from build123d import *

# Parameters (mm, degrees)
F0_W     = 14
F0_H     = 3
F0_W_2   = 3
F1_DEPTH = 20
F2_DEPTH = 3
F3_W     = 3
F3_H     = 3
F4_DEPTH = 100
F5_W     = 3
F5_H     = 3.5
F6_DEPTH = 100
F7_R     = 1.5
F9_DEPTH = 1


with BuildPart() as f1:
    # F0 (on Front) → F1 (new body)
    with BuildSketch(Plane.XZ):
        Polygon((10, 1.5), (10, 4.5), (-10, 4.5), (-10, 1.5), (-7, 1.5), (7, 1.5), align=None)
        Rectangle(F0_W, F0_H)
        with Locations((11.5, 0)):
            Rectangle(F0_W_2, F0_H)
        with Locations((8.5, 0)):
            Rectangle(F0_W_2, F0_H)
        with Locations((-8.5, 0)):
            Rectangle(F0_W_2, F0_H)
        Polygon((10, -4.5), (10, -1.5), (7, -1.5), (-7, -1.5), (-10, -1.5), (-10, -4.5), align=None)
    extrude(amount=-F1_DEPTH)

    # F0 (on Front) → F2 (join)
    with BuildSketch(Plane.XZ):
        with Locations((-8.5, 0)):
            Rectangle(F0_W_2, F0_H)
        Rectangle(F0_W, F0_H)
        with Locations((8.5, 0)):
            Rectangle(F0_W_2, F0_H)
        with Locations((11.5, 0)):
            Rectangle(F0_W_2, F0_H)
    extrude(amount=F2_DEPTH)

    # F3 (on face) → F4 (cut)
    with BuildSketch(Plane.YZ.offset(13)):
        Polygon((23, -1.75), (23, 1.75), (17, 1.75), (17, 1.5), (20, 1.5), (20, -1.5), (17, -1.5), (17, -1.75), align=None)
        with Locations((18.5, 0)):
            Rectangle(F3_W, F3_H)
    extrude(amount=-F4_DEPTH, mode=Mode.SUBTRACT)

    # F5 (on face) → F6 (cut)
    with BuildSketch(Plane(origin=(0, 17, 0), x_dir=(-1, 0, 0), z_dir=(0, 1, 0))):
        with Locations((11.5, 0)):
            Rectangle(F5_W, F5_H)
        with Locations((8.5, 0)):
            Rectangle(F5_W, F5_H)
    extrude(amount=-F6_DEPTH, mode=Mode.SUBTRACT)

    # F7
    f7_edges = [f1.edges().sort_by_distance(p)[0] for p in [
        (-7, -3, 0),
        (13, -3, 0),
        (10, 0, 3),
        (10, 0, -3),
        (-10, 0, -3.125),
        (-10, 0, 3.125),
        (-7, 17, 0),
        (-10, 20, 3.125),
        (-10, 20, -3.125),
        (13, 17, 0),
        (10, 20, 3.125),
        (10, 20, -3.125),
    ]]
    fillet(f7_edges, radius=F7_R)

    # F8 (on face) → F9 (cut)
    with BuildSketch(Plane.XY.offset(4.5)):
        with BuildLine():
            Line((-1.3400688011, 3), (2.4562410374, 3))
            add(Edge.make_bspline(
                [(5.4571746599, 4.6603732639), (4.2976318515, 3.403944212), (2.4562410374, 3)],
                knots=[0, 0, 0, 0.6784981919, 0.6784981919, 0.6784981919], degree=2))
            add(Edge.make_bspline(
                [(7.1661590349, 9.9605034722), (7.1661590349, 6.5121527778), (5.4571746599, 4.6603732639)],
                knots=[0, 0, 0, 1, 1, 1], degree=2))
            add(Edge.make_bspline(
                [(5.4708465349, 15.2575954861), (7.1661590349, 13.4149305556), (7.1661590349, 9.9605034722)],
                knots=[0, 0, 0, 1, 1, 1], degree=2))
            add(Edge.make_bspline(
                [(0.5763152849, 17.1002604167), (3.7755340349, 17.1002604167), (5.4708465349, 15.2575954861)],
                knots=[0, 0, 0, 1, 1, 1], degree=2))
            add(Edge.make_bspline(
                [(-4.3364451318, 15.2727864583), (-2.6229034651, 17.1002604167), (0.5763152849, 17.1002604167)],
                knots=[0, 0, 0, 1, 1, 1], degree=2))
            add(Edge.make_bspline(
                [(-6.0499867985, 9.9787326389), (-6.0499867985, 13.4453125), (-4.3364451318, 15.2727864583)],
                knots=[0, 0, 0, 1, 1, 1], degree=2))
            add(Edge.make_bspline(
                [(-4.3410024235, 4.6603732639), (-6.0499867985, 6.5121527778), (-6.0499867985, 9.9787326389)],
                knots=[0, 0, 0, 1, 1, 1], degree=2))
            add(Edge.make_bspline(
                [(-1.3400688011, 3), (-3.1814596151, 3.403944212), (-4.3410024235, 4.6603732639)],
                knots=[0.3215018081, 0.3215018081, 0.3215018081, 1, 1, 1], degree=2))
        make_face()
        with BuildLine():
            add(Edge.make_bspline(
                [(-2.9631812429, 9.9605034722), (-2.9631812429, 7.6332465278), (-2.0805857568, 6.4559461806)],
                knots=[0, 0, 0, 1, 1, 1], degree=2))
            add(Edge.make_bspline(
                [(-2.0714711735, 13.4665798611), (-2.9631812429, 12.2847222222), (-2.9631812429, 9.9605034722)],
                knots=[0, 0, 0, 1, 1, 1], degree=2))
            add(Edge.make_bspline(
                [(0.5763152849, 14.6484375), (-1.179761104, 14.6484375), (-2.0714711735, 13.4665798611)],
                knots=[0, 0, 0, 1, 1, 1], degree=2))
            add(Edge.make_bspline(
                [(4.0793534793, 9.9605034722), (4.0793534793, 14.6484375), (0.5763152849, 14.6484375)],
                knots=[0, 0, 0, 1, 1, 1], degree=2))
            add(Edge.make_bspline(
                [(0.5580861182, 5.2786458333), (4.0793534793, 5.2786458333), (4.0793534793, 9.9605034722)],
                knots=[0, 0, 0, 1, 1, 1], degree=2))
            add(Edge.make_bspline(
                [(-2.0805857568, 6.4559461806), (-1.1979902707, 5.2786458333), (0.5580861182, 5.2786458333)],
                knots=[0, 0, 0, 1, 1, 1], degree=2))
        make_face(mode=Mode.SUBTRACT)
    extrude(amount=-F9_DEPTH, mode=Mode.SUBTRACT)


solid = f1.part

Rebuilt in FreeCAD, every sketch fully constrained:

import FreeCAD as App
import Part
import Sketcher
from FreeCAD import Vector
Q = App.Units.Quantity


def edges_at(feature, points):
    """Names of the edges that pass closest to the given points."""
    edges = feature.Shape.Edges
    near = lambda p: min(range(len(edges)), key=lambda i: edges[i].distToShape(Part.Vertex(*p))[0])
    return sorted({f"Edge{near(p) + 1}" for p in points})


def add_polygon(sketch, points):
    """Adds a closed chain of lines whose ends are joined by coincident constraints."""
    first, n = sketch.GeometryCount, len(points)
    for a, b in zip(points, points[1:] + points[:1]):
        sketch.addGeometry(Part.LineSegment(App.Vector(*a, 0), App.Vector(*b, 0)), False)
    for i in range(n):
        sketch.addConstraint(Sketcher.Constraint("Coincident", first + i, 2, first + (i + 1) % n, 1))

doc = App.newDocument("Part")
body = doc.addObject("PartDesign::Body", "Body")

sketch1 = body.newObject("Sketcher::SketchObject", "Sketch")
sketch1.AttachmentSupport = (doc.getObject("XZ_Plane"), [""])
sketch1.MapMode = "FlatFace"
add_polygon(sketch1, [(10, 1.5), (10, 4.5), (-10, 4.5), (-10, -4.5), (10, -4.5), (10, -1.5), (13, -1.5), (13, 1.5)])
sketch1.addConstraint([
    Sketcher.Constraint("Vertical", 0),
    Sketcher.Constraint("Horizontal", 1),
    Sketcher.Constraint("Vertical", 2),
    Sketcher.Constraint("Horizontal", 3),
    Sketcher.Constraint("Vertical", 4),
    Sketcher.Constraint("Horizontal", 5),
    Sketcher.Constraint("Vertical", 6),
    Sketcher.Constraint("Horizontal", 7),
    Sketcher.Constraint("Symmetric", 0, 2, 2, 2, -1, 1),
    Sketcher.Constraint("Symmetric", 4, 2, 7, 2, -1),
    Sketcher.Constraint("Equal", 7, 0),
    Sketcher.Constraint("Equal", 4, 6),
    Sketcher.Constraint("DistanceX", 1, 2, 1, 1, Q("20 mm")),
    Sketcher.Constraint("DistanceX", 5, 1, 5, 2, Q("3 mm")),
])
pad1 = body.newObject("PartDesign::Pad", "Pad")
pad1.Profile = sketch1
pad1.Length = 20
pad1.Reversed = True

sketch2 = body.newObject("Sketcher::SketchObject", "Sketch001")
sketch2.AttachmentSupport = (doc.getObject("XZ_Plane"), [""])
sketch2.MapMode = "FlatFace"
add_polygon(sketch2, [(-10, 1.5), (-10, -1.5), (13, -1.5), (13, 1.5)])
sketch2.addConstraint([
    Sketcher.Constraint("Vertical", 0),
    Sketcher.Constraint("Horizontal", 1),
    Sketcher.Constraint("Vertical", 2),
    Sketcher.Constraint("Horizontal", 3),
    Sketcher.Constraint("DistanceX", 1, 1, 1, 2, Q("23 mm")),
    Sketcher.Constraint("DistanceY", 0, 2, 0, 1, Q("3 mm")),
    Sketcher.Constraint("DistanceX", 0, 2, -1, 1, Q("10 mm")),
    Sketcher.Constraint("DistanceY", 0, 2, -1, 1, Q("1.5 mm")),
])
pad2 = body.newObject("PartDesign::Pad", "Pad001")
pad2.Profile = sketch2
pad2.Length = 3

sketch3 = body.newObject("Sketcher::SketchObject", "Sketch002")
sketch3.AttachmentSupport = (doc.getObject("YZ_Plane"), [""])
sketch3.MapMode = "FlatFace"
sketch3.AttachmentOffset = App.Placement(Vector(0, 0, 13), App.Rotation())
add_polygon(sketch3, [(23, -1.75), (23, 1.75), (17, 1.75), (17, -1.75)])
sketch3.addConstraint([
    Sketcher.Constraint("Vertical", 0),
    Sketcher.Constraint("Horizontal", 1),
    Sketcher.Constraint("Vertical", 2),
    Sketcher.Constraint("Horizontal", 3),
    Sketcher.Constraint("DistanceX", 1, 2, 1, 1, Q("6 mm")),
    Sketcher.Constraint("DistanceY", 0, 1, 0, 2, Q("3.5 mm")),
    Sketcher.Constraint("DistanceX", -1, 1, 0, 2, Q("23 mm")),
    Sketcher.Constraint("DistanceY", -1, 1, 0, 2, Q("1.75 mm")),
])
pocket1 = body.newObject("PartDesign::Pocket", "Pocket")
pocket1.Profile = sketch3
pocket1.Length = 100

sketch4 = body.newObject("Sketcher::SketchObject", "Sketch003")
sketch4.AttachmentSupport = (doc.getObject("XZ_Plane"), [""])
sketch4.MapMode = "FlatFace"
sketch4.AttachmentOffset = App.Placement(Vector(0, 0, -17), App.Rotation())
add_polygon(sketch4, [(-13, -1.75), (-13, 1.75), (-7, 1.75), (-7, -1.75)])
sketch4.addConstraint([
    Sketcher.Constraint("Vertical", 0),
    Sketcher.Constraint("Horizontal", 1),
    Sketcher.Constraint("Vertical", 2),
    Sketcher.Constraint("Horizontal", 3),
    Sketcher.Constraint("DistanceX", 1, 1, 1, 2, Q("6 mm")),
    Sketcher.Constraint("DistanceY", 0, 1, 0, 2, Q("3.5 mm")),
    Sketcher.Constraint("DistanceX", 0, 2, -1, 1, Q("13 mm")),
    Sketcher.Constraint("DistanceY", -1, 1, 0, 2, Q("1.75 mm")),
])
pocket2 = body.newObject("PartDesign::Pocket", "Pocket001")
pocket2.Profile = sketch4
pocket2.Length = 100
pocket2.Reversed = True
doc.recompute()

fillet = body.newObject("PartDesign::Fillet", "Fillet")
fillet.Base = (pocket2, edges_at(pocket2, [
    (-7, -3, 0),
    (13, -3, 0),
    (10, 0, 3),
    (10, 0, -3),
    (-10, 0, -3.125),
    (-10, 0, 3.125),
    (-7, 17, 0),
    (-10, 20, 3.125),
    (-10, 20, -3.125),
    (13, 17, 0),
    (10, 20, 3.125),
    (10, 20, -3.125),
]))
fillet.Radius = 1.5

sketch5 = body.newObject("Sketcher::SketchObject", "Sketch004")
sketch5.AttachmentSupport = (doc.getObject("XY_Plane"), [""])
sketch5.MapMode = "FlatFace"
sketch5.AttachmentOffset = App.Placement(Vector(0, 0, 4.5), App.Rotation())
sketch5.addGeometry([
    Part.LineSegment(Vector(-1.340069, 3, 0), Vector(2.456241, 3, 0)),
    Part.BSplineCurve([Vector(5.457175, 4.660373, 0), Vector(4.297632, 3.403944, 0), Vector(2.456241, 3, 0)], [3, 3], [0, 0.678498192], False, 2, [1, 1, 1], False),
    Part.BSplineCurve([Vector(5.470847, 15.257595, 0), Vector(7.166159, 13.414931, 0), Vector(7.166159, 6.512153, 0), Vector(5.457175, 4.660373, 0)], [3, 1, 3], [0, 1, 1.998240985], False, 2, [1, 1, 1, 1], False),
    Part.BSplineCurve([Vector(-4.336445, 15.272786, 0), Vector(-2.622903, 17.10026, 0), Vector(3.775534, 17.10026, 0), Vector(5.470847, 15.257595, 0)], [3, 1, 3], [0, 1, 2], False, 2, [1, 1, 1, 1], False),
    Part.BSplineCurve([Vector(-4.341002, 4.660373, 0), Vector(-6.049987, 6.512153, 0), Vector(-6.049987, 13.445312, 0), Vector(-4.336445, 15.272786, 0)], [3, 1, 3], [0, 1, 2], False, 2, [1, 1, 1, 1], False),
    Part.BSplineCurve([Vector(-1.340069, 3, 0), Vector(-3.18146, 3.403944, 0), Vector(-4.341002, 4.660373, 0)], [3, 3], [0.321501808, 1], False, 2, [1, 1, 1], False),
    Part.BSplineCurve([Vector(-2.071471, 13.46658, 0), Vector(-2.963181, 12.284722, 0), Vector(-2.963181, 7.633247, 0), Vector(-2.080586, 6.455946, 0)], [3, 1, 3], [0, 1, 2.00130719], False, 2, [1, 1, 1, 1], False),
    Part.BSplineCurve([Vector(-2.080586, 6.455946, 0), Vector(-1.19799, 5.278646, 0), Vector(4.079353, 5.278646, 0), Vector(4.079353, 14.648438, 0), Vector(-1.179761, 14.648438, 0), Vector(-2.071471, 13.46658, 0)], [3, 1, 1, 1, 3], [0, 1, 3.005190311, 5.012983076, 6.019491505], False, 2, [1, 1, 1, 1, 1, 1], False),
], False)
sketch5.addConstraint([
    Sketcher.Constraint("Block", 1),
    Sketcher.Constraint("Block", 2),
    Sketcher.Constraint("Block", 3),
    Sketcher.Constraint("Block", 4),
    Sketcher.Constraint("Block", 5),
    Sketcher.Constraint("Block", 6),
    Sketcher.Constraint("Block", 7),
    Sketcher.Constraint("Coincident", 0, 2, 1, 2),
    Sketcher.Constraint("Coincident", 5, 1, 0, 1),
])
pocket3 = body.newObject("PartDesign::Pocket", "Pocket002")
pocket3.Profile = sketch5
pocket3.Length = 1

doc.recompute()
